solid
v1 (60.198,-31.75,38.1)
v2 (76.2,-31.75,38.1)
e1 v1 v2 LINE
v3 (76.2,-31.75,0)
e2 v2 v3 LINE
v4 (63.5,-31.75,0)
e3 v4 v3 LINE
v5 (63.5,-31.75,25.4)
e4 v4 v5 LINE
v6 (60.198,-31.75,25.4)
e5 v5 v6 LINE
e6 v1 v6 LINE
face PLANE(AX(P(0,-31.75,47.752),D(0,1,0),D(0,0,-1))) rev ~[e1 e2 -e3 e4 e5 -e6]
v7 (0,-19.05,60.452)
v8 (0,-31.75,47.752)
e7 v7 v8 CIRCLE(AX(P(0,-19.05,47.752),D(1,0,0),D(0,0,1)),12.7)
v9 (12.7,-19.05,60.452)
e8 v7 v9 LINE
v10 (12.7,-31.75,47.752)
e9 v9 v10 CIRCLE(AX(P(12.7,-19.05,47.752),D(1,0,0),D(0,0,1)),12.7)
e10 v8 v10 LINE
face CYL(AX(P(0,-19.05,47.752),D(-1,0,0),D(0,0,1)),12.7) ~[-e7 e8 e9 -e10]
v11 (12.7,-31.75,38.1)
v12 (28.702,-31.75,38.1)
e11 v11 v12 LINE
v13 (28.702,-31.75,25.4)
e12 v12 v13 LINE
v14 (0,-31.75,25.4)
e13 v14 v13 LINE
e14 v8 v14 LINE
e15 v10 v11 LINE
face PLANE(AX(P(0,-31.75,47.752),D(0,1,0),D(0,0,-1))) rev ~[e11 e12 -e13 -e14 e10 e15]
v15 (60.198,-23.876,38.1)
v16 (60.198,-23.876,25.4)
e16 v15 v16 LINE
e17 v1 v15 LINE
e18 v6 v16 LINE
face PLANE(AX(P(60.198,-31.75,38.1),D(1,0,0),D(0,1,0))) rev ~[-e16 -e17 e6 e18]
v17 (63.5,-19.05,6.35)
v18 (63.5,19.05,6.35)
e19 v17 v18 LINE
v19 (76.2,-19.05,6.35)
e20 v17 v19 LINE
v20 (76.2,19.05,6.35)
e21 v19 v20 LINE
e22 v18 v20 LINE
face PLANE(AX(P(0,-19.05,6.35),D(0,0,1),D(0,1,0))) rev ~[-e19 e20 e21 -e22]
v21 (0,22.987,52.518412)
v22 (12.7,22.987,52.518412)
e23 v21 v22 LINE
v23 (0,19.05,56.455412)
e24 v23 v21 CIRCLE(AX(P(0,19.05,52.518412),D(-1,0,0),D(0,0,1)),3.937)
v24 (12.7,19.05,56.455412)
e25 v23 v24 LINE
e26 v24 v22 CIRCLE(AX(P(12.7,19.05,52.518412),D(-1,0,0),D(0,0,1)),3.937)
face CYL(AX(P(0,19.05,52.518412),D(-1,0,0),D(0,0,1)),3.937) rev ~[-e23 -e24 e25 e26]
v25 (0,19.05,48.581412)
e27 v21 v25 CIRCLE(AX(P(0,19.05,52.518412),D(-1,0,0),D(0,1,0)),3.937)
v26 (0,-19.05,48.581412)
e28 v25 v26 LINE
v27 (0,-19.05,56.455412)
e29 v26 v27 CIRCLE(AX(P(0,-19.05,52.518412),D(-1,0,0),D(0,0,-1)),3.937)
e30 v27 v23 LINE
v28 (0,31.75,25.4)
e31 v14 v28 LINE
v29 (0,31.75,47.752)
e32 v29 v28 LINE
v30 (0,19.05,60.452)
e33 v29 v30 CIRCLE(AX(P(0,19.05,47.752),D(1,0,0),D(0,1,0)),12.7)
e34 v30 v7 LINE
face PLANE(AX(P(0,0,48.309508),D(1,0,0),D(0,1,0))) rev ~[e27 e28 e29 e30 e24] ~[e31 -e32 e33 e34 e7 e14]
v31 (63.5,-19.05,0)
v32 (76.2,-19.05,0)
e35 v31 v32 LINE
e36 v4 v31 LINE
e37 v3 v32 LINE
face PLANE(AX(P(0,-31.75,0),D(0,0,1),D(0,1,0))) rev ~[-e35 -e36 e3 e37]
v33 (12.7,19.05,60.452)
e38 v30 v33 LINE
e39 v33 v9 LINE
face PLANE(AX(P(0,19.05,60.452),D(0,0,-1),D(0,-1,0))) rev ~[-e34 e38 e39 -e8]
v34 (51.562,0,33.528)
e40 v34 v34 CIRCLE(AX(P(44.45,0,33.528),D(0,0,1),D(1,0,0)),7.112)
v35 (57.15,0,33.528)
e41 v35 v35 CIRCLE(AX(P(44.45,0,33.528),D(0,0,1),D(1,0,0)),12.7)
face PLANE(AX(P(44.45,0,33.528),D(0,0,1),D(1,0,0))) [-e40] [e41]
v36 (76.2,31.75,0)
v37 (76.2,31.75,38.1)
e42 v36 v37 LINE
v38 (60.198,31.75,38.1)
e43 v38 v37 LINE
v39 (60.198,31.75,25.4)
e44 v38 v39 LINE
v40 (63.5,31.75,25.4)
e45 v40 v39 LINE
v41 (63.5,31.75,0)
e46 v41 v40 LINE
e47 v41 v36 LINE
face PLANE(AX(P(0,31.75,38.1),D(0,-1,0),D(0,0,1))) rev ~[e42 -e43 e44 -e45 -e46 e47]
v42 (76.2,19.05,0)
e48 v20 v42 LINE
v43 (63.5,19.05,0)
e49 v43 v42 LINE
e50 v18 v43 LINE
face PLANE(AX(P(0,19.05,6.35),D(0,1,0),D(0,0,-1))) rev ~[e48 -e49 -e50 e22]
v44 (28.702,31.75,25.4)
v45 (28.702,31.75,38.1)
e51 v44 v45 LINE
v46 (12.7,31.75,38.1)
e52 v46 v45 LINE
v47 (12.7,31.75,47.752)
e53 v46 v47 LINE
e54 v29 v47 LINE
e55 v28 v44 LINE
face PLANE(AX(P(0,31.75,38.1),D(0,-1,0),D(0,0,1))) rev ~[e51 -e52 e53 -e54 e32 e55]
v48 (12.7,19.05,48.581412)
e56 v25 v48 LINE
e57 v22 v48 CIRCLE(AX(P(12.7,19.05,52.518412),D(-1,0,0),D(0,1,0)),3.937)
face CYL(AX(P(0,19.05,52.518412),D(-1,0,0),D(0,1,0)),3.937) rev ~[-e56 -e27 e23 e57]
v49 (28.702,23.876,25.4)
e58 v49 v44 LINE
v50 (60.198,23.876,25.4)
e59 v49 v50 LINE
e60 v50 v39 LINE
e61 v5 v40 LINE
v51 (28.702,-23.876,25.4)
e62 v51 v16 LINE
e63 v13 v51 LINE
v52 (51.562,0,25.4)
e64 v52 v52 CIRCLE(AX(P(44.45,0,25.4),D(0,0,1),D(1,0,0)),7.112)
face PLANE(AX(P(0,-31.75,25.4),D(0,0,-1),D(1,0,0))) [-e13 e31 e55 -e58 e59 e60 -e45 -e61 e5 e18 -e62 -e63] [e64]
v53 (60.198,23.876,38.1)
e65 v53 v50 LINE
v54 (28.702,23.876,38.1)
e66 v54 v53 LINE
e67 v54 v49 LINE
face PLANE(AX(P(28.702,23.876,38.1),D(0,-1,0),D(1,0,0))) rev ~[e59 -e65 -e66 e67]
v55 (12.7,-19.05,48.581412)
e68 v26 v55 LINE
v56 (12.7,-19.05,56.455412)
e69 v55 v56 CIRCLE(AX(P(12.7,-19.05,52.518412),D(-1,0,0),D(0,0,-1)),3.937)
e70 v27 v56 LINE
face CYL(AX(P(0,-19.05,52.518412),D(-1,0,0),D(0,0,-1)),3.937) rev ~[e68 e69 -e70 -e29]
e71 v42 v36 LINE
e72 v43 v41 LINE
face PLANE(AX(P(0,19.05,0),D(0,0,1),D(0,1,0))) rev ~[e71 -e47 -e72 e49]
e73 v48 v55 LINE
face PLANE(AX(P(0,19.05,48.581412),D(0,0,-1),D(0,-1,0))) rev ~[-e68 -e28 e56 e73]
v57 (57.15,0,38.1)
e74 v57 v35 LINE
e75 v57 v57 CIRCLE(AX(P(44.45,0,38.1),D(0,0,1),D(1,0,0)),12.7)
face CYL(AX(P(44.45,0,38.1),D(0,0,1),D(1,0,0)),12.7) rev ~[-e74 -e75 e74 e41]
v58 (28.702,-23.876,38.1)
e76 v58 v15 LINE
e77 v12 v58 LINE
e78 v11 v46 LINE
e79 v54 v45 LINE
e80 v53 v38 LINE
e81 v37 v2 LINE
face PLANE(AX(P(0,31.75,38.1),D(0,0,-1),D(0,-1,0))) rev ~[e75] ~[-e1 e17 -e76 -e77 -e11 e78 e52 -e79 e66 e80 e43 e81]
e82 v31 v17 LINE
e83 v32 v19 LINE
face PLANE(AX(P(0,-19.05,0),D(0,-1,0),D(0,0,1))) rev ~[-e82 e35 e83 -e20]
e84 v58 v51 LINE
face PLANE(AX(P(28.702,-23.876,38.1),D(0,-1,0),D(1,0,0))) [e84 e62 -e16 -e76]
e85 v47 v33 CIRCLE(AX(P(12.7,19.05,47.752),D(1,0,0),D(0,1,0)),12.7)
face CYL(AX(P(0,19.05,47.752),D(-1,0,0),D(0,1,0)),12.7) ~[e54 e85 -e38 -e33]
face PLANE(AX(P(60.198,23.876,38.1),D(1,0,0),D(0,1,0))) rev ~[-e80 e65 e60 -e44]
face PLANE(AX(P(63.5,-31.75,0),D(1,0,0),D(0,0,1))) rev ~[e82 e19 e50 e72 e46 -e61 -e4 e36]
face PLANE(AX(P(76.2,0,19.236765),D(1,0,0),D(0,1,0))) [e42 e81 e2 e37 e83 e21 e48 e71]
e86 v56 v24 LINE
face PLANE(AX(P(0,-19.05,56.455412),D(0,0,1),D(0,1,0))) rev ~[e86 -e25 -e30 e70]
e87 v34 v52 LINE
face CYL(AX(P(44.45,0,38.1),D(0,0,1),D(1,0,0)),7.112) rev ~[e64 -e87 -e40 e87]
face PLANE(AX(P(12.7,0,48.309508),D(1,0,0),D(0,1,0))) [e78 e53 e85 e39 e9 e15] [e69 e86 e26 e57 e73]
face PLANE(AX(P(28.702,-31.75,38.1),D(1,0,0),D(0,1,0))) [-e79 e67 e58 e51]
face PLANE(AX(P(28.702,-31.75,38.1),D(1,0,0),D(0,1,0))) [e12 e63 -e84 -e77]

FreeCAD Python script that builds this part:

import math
import FreeCAD as App
import Part
import Sketcher
Q = App.Units.Quantity


def add_polygon(sketch, points):
    """Adds a closed chain of lines whose ends are joined by coincident constraints."""
    first, n = sketch.GeometryCount, len(points)
    for a, b in zip(points, points[1:] + points[:1]):
        sketch.addGeometry(Part.LineSegment(App.Vector(*a, 0), App.Vector(*b, 0)), False)
    for i in range(n):
        sketch.addConstraint(Sketcher.Constraint("Coincident", first + i, 2, first + (i + 1) % n, 1))

doc = App.newDocument("Part")
params = doc.addObject("Spreadsheet::Sheet", "Params")
for row, (alias, value) in enumerate([
    ("sketch1_width", "0.5 in"),
    ("sketch1_width2", "1.5 in"),
    ("sketch1_height", "0.25 in"),
    ("pad1_length", "3 in"),
    ("sketch2_radius", "0.5 in"),
    ("sketch2_width", "2.5 in"),
    ("sketch2_radius2", "0.155 in"),
    ("sketch2_height", "0.38 in"),
    ("pad2_length", "0.5 in"),
    ("sketch3_width", "1.24 in"),
    ("sketch3_height", "0.31 in"),
    ("sketch4_height", "1 in"),
    ("sketch4_width", "0.13 in"),
    ("sketch5_height", "1 in"),
    ("sketch5_width", "1.24 in"),
    ("sketch6_height", "1 in"),
    ("sketch6_width", "1.13 in"),
    ("sketch7_diameter", "0.56 in"),
    ("sketch8_diameter", "1 in"),
    ("sketch8_diameter2", "0.56 in"),
    ("pocket6_length", "0.18 in"),
], start=1):
    params.set(f"A{row}", alias)
    params.set(f"B{row}", "=" + value)
    params.setAlias(f"B{row}", alias)

body = doc.addObject("PartDesign::Body", "Body")

# Sketch on YZ plane
sketch1 = body.newObject("Sketcher::SketchObject", "Sketch")
sketch1.AttachmentSupport = (doc.getObject("YZ_Plane"), [""])
sketch1.MapMode = "FlatFace"
add_polygon(sketch1, [(-32, 38), (-32, 0), (-19, 0), (-19, 6), (19, 6), (19, 0), (32, 0), (32, 38)])  # lines 0-7
sketch1.addConstraint([
    Sketcher.Constraint("Vertical", 0),
    Sketcher.Constraint("Horizontal", 1),
    Sketcher.Constraint("Vertical", 2),
    Sketcher.Constraint("Horizontal", 3),
    Sketcher.Constraint("Vertical", 4),
    Sketcher.Constraint("Horizontal", 5),
    Sketcher.Constraint("Vertical", 6),
    Sketcher.Constraint("Horizontal", 7),
    Sketcher.Constraint("Symmetric", 1, 2, 4, 2, -1, 1),
    Sketcher.Constraint("Symmetric", 0, 2, 5, 2, -2),
    Sketcher.Constraint("Equal", 3, 0),
    Sketcher.Constraint("DistanceX", 1, 1, 1, 2, Q("0.5 in")),
    Sketcher.Constraint("DistanceX", 3, 1, 3, 2, Q("1.5 in")),
    Sketcher.Constraint("DistanceY", 2, 1, 2, 2, Q("0.25 in")),
])
sketch1.setExpression("Constraints[19]", "Params.sketch1_width")
sketch1.setExpression("Constraints[20]", "Params.sketch1_width2")
sketch1.setExpression("Constraints[21]", "Params.sketch1_height")
pad1 = body.newObject("PartDesign::Pad", "Pad")
pad1.Profile = sketch1
pad1.setExpression("Length", "Params.pad1_length")

# Sketch on YZ plane
sketch2 = body.newObject("Sketcher::SketchObject", "Sketch001")
sketch2.AttachmentSupport = (doc.getObject("YZ_Plane"), [""])
sketch2.MapMode = "FlatFace"
sketch2.addGeometry([
    Part.LineSegment(App.Vector(-31.8, 47.8, 0), App.Vector(-31.8, 38.1, 0)),  # 0
    Part.LineSegment(App.Vector(-31.8, 38.1, 0), App.Vector(31.8, 38.1, 0)),  # 1
    Part.LineSegment(App.Vector(31.8, 38.1, 0), App.Vector(31.8, 47.8, 0)),  # 2
    Part.ArcOfCircle(Part.Circle(App.Vector(19.1, 47.8, 0), App.Vector(0, 0, 1), 12.7), math.radians(0), math.radians(90)),  # 3
    Part.LineSegment(App.Vector(19.1, 60.5, 0), App.Vector(-19.1, 60.5, 0)),  # 4
    Part.ArcOfCircle(Part.Circle(App.Vector(-19.1, 47.8, 0), App.Vector(0, 0, 1), 12.7), math.radians(90), math.radians(180)),  # 5
    Part.LineSegment(App.Vector(19.1, 48.6, 0), App.Vector(-19.1, 48.6, 0)),  # 6
    Part.ArcOfCircle(Part.Circle(App.Vector(-19.1, 52.5, 0), App.Vector(0, 0, 1), 3.9), math.radians(90), math.radians(270)),  # 7
    Part.LineSegment(App.Vector(-19.1, 56.5, 0), App.Vector(19.1, 56.5, 0)),  # 8
    Part.ArcOfCircle(Part.Circle(App.Vector(19.1, 52.5, 0), App.Vector(0, 0, 1), 3.9), math.radians(0), math.radians(90)),  # 9
    Part.ArcOfCircle(Part.Circle(App.Vector(19.1, 52.5, 0), App.Vector(0, 0, 1), 3.9), math.radians(-90), math.radians(0)),  # 10
], False)
sketch2.addConstraint([
    Sketcher.Constraint("Coincident", 0, 2, 1, 1),
    Sketcher.Constraint("Coincident", 1, 2, 2, 1),
    Sketcher.Constraint("Tangent", 2, 2, 3, 1),
    Sketcher.Constraint("Tangent", 3, 2, 4, 1),
    Sketcher.Constraint("Tangent", 4, 2, 5, 1),
    Sketcher.Constraint("Tangent", 5, 2, 0, 1),
    Sketcher.Constraint("Tangent", 6, 2, 7, 2),
    Sketcher.Constraint("Tangent", 7, 1, 8, 1),
    Sketcher.Constraint("Tangent", 8, 2, 9, 2),
    Sketcher.Constraint("Tangent", 9, 1, 10, 2),
    Sketcher.Constraint("Tangent", 10, 1, 6, 1),
    Sketcher.Constraint("Vertical", 0),
    Sketcher.Constraint("Horizontal", 1),
    Sketcher.Constraint("Vertical", 2),
    Sketcher.Constraint("Horizontal", 4),
    Sketcher.Constraint("Horizontal", 6),
    Sketcher.Constraint("Horizontal", 8),
    Sketcher.Constraint("Equal", 3, 5),
    Sketcher.Constraint("Equal", 7, 9),
    Sketcher.Constraint("Horizontal", 10, 3, 9, 1),
    Sketcher.Constraint("Vertical", 5, 3, 7, 3),
    Sketcher.Constraint("Vertical", 3, 3, 9, 3),
    Sketcher.Constraint("Radius", 3, Q("0.5 in")),
    Sketcher.Constraint("DistanceX", 1, 1, 1, 2, Q("2.5 in")),
    Sketcher.Constraint("Radius", 7, Q("0.155 in")),
    Sketcher.Constraint("DistanceY", 0, 2, 0, 1, Q("0.38 in")),
    Sketcher.Constraint("DistanceY", -1, 1, 0, 2, Q("1.5 in")),
    Sketcher.Constraint("DistanceX", -1, 1, 3, 3, Q("0.75 in")),
    Sketcher.Constraint("DistanceY", -1, 1, 7, 3, Q("52.518412 mm")),
])
sketch2.setExpression("Constraints[22]", "Params.sketch2_radius")
sketch2.setExpression("Constraints[23]", "Params.sketch2_width")
sketch2.setExpression("Constraints[24]", "Params.sketch2_radius2")
sketch2.setExpression("Constraints[25]", "Params.sketch2_height")
pad2 = body.newObject("PartDesign::Pad", "Pad001")
pad2.Profile = sketch2
pad2.setExpression("Length", "Params.pad2_length")

# Sketch on XY plane
sketch3 = body.newObject("Sketcher::SketchObject", "Sketch002")
sketch3.AttachmentSupport = (doc.getObject("XY_Plane"), [""])
sketch3.MapMode = "FlatFace"
sketch3.AttachmentOffset = App.Placement(App.Vector(0, 0, 1.5 * 25.4), App.Rotation())
add_polygon(sketch3, [(29, 32), (29, 24), (60, 24), (60, 32)])  # lines 0-3
add_polygon(sketch3, [(29, -24), (29, -32), (60, -32), (60, -24)])  # lines 4-7
sketch3.addConstraint([
    Sketcher.Constraint("Vertical", 0),
    Sketcher.Constraint("Horizontal", 1),
    Sketcher.Constraint("Vertical", 2),
    Sketcher.Constraint("Horizontal", 3),
    Sketcher.Constraint("Vertical", 4),
    Sketcher.Constraint("Horizontal", 5),
    Sketcher.Constraint("Vertical", 6),
    Sketcher.Constraint("Horizontal", 7),
    Sketcher.Constraint("Symmetric", 3, 2, 4, 2, -1),
    Sketcher.Constraint("Symmetric", 1, 2, 6, 2, -1),
    Sketcher.Constraint("DistanceX", 1, 1, 1, 2, Q("1.24 in")),
    Sketcher.Constraint("DistanceY", 0, 2, 0, 1, Q("0.31 in")),
    Sketcher.Constraint("DistanceY", 4, 2, 3, 2, Q("2.5 in")),
    Sketcher.Constraint("DistanceX", -1, 1, 0, 2, Q("1.13 in")),
])
sketch3.setExpression("Constraints[18]", "Params.sketch3_width")
sketch3.setExpression("Constraints[19]", "Params.sketch3_height")
pocket1 = body.newObject("PartDesign::Pocket", "Pocket")
pocket1.Profile = sketch3
pocket1.Type = "ThroughAll"

# Sketch on XZ plane
sketch4 = body.newObject("Sketcher::SketchObject", "Sketch003")
sketch4.AttachmentSupport = (doc.getObject("XZ_Plane"), [""])
sketch4.MapMode = "FlatFace"
sketch4.AttachmentOffset = App.Placement(App.Vector(0, 0, 1.25 * 25.4), App.Rotation())
add_polygon(sketch4, [(60.2, 0), (63.5, 0), (63.5, 25.4), (60.2, 25.4)])  # lines 0-3
sketch4.addConstraint([
    Sketcher.Constraint("Horizontal", 0),
    Sketcher.Constraint("Vertical", 1),
    Sketcher.Constraint("Horizontal", 2),
    Sketcher.Constraint("Vertical", 3),
    Sketcher.Constraint("PointOnObject", 0, 2, -1),
    Sketcher.Constraint("DistanceY", 1, 1, 1, 2, Q("1 in")),
    Sketcher.Constraint("DistanceX", 0, 1, 0, 2, Q("0.13 in")),
    Sketcher.Constraint("DistanceX", -1, 1, 0, 2, Q("2.5 in")),
])
sketch4.setExpression("Constraints[9]", "Params.sketch4_height")
sketch4.setExpression("Constraints[10]", "Params.sketch4_width")
pocket2 = body.newObject("PartDesign::Pocket", "Pocket001")
pocket2.Profile = sketch4
pocket2.Type = "ThroughAll"

# Sketch on XZ plane
sketch5 = body.newObject("Sketcher::SketchObject", "Sketch004")
sketch5.AttachmentSupport = (doc.getObject("XZ_Plane"), [""])
sketch5.MapMode = "FlatFace"
sketch5.AttachmentOffset = App.Placement(App.Vector(0, 0, 0.94 * 25.4), App.Rotation())
add_polygon(sketch5, [(29, 25), (29, 0), (60, 0), (60, 25)])  # lines 0-3
sketch5.addConstraint([
    Sketcher.Constraint("Vertical", 0),
    Sketcher.Constraint("Horizontal", 1),
    Sketcher.Constraint("Vertical", 2),
    Sketcher.Constraint("Horizontal", 3),
    Sketcher.Constraint("PointOnObject", 0, 2, -1),
    Sketcher.Constraint("DistanceY", 0, 2, 0, 1, Q("1 in")),
    Sketcher.Constraint("DistanceX", 1, 1, 1, 2, Q("1.24 in")),
    Sketcher.Constraint("DistanceX", -1, 1, 0, 2, Q("1.13 in")),
])
sketch5.setExpression("Constraints[9]", "Params.sketch5_height")
sketch5.setExpression("Constraints[10]", "Params.sketch5_width")
pocket3 = body.newObject("PartDesign::Pocket", "Pocket002")
pocket3.Profile = sketch5
pocket3.Type = "ThroughAll"

# Sketch on XZ plane
sketch6 = body.newObject("Sketcher::SketchObject", "Sketch005")
sketch6.AttachmentSupport = (doc.getObject("XZ_Plane"), [""])
sketch6.MapMode = "FlatFace"
sketch6.AttachmentOffset = App.Placement(App.Vector(0, 0, 1.25 * 25.4), App.Rotation())
add_polygon(sketch6, [(0, 25), (0, 0), (29, 0), (29, 25)])  # lines 0-3
sketch6.addConstraint([
    Sketcher.Constraint("Vertical", 0),
    Sketcher.Constraint("Horizontal", 1),
    Sketcher.Constraint("Vertical", 2),
    Sketcher.Constraint("Horizontal", 3),
    Sketcher.Constraint("Coincident", 0, 2, -1, 1),
    Sketcher.Constraint("DistanceY", 0, 2, 0, 1, Q("1 in")),
    Sketcher.Constraint("DistanceX", 1, 1, 1, 2, Q("1.13 in")),
])
sketch6.setExpression("Constraints[9]", "Params.sketch6_height")
sketch6.setExpression("Constraints[10]", "Params.sketch6_width")
pocket4 = body.newObject("PartDesign::Pocket", "Pocket003")
pocket4.Profile = sketch6
pocket4.Type = "ThroughAll"

# Sketch on XY plane
sketch7 = body.newObject("Sketcher::SketchObject", "Sketch006")
sketch7.AttachmentSupport = (doc.getObject("XY_Plane"), [""])
sketch7.MapMode = "FlatFace"
sketch7.AttachmentOffset = App.Placement(App.Vector(0, 0, 1.5 * 25.4), App.Rotation())
sketch7.addGeometry(Part.Circle(App.Vector(44, 0, 0), App.Vector(0, 0, 1), 7), False)
sketch7.addConstraint([
    Sketcher.Constraint("PointOnObject", 0, 3, -1),
    Sketcher.Constraint("Diameter", 0, Q("0.56 in")),
    Sketcher.Constraint("DistanceX", -1, 1, 0, 3, Q("1.75 in")),
])
sketch7.setExpression("Constraints[1]", "Params.sketch7_diameter")
pocket5 = body.newObject("PartDesign::Pocket", "Pocket004")
pocket5.Profile = sketch7
pocket5.Type = "ThroughAll"

# Sketch on XY plane
sketch8 = body.newObject("Sketcher::SketchObject", "Sketch007")
sketch8.AttachmentSupport = (doc.getObject("XY_Plane"), [""])
sketch8.MapMode = "FlatFace"
sketch8.AttachmentOffset = App.Placement(App.Vector(0, 0, 1.5 * 25.4), App.Rotation())
sketch8.addGeometry([
    Part.Circle(App.Vector(44, 0, 0), App.Vector(0, 0, 1), 13),
    Part.Circle(App.Vector(44, 0, 0), App.Vector(0, 0, 1), 7),
], False)
sketch8.addConstraint([
    Sketcher.Constraint("Coincident", 1, 3, 0, 3),
    Sketcher.Constraint("PointOnObject", 0, 3, -1),
    Sketcher.Constraint("Diameter", 0, Q("1 in")),
    Sketcher.Constraint("Diameter", 1, Q("0.56 in")),
    Sketcher.Constraint("DistanceX", -1, 1, 0, 3, Q("1.75 in")),
])
sketch8.setExpression("Constraints[2]", "Params.sketch8_diameter")
sketch8.setExpression("Constraints[3]", "Params.sketch8_diameter2")
pocket6 = body.newObject("PartDesign::Pocket", "Pocket005")
pocket6.Profile = sketch8
pocket6.setExpression("Length", "Params.pocket6_length")

doc.recompute()
